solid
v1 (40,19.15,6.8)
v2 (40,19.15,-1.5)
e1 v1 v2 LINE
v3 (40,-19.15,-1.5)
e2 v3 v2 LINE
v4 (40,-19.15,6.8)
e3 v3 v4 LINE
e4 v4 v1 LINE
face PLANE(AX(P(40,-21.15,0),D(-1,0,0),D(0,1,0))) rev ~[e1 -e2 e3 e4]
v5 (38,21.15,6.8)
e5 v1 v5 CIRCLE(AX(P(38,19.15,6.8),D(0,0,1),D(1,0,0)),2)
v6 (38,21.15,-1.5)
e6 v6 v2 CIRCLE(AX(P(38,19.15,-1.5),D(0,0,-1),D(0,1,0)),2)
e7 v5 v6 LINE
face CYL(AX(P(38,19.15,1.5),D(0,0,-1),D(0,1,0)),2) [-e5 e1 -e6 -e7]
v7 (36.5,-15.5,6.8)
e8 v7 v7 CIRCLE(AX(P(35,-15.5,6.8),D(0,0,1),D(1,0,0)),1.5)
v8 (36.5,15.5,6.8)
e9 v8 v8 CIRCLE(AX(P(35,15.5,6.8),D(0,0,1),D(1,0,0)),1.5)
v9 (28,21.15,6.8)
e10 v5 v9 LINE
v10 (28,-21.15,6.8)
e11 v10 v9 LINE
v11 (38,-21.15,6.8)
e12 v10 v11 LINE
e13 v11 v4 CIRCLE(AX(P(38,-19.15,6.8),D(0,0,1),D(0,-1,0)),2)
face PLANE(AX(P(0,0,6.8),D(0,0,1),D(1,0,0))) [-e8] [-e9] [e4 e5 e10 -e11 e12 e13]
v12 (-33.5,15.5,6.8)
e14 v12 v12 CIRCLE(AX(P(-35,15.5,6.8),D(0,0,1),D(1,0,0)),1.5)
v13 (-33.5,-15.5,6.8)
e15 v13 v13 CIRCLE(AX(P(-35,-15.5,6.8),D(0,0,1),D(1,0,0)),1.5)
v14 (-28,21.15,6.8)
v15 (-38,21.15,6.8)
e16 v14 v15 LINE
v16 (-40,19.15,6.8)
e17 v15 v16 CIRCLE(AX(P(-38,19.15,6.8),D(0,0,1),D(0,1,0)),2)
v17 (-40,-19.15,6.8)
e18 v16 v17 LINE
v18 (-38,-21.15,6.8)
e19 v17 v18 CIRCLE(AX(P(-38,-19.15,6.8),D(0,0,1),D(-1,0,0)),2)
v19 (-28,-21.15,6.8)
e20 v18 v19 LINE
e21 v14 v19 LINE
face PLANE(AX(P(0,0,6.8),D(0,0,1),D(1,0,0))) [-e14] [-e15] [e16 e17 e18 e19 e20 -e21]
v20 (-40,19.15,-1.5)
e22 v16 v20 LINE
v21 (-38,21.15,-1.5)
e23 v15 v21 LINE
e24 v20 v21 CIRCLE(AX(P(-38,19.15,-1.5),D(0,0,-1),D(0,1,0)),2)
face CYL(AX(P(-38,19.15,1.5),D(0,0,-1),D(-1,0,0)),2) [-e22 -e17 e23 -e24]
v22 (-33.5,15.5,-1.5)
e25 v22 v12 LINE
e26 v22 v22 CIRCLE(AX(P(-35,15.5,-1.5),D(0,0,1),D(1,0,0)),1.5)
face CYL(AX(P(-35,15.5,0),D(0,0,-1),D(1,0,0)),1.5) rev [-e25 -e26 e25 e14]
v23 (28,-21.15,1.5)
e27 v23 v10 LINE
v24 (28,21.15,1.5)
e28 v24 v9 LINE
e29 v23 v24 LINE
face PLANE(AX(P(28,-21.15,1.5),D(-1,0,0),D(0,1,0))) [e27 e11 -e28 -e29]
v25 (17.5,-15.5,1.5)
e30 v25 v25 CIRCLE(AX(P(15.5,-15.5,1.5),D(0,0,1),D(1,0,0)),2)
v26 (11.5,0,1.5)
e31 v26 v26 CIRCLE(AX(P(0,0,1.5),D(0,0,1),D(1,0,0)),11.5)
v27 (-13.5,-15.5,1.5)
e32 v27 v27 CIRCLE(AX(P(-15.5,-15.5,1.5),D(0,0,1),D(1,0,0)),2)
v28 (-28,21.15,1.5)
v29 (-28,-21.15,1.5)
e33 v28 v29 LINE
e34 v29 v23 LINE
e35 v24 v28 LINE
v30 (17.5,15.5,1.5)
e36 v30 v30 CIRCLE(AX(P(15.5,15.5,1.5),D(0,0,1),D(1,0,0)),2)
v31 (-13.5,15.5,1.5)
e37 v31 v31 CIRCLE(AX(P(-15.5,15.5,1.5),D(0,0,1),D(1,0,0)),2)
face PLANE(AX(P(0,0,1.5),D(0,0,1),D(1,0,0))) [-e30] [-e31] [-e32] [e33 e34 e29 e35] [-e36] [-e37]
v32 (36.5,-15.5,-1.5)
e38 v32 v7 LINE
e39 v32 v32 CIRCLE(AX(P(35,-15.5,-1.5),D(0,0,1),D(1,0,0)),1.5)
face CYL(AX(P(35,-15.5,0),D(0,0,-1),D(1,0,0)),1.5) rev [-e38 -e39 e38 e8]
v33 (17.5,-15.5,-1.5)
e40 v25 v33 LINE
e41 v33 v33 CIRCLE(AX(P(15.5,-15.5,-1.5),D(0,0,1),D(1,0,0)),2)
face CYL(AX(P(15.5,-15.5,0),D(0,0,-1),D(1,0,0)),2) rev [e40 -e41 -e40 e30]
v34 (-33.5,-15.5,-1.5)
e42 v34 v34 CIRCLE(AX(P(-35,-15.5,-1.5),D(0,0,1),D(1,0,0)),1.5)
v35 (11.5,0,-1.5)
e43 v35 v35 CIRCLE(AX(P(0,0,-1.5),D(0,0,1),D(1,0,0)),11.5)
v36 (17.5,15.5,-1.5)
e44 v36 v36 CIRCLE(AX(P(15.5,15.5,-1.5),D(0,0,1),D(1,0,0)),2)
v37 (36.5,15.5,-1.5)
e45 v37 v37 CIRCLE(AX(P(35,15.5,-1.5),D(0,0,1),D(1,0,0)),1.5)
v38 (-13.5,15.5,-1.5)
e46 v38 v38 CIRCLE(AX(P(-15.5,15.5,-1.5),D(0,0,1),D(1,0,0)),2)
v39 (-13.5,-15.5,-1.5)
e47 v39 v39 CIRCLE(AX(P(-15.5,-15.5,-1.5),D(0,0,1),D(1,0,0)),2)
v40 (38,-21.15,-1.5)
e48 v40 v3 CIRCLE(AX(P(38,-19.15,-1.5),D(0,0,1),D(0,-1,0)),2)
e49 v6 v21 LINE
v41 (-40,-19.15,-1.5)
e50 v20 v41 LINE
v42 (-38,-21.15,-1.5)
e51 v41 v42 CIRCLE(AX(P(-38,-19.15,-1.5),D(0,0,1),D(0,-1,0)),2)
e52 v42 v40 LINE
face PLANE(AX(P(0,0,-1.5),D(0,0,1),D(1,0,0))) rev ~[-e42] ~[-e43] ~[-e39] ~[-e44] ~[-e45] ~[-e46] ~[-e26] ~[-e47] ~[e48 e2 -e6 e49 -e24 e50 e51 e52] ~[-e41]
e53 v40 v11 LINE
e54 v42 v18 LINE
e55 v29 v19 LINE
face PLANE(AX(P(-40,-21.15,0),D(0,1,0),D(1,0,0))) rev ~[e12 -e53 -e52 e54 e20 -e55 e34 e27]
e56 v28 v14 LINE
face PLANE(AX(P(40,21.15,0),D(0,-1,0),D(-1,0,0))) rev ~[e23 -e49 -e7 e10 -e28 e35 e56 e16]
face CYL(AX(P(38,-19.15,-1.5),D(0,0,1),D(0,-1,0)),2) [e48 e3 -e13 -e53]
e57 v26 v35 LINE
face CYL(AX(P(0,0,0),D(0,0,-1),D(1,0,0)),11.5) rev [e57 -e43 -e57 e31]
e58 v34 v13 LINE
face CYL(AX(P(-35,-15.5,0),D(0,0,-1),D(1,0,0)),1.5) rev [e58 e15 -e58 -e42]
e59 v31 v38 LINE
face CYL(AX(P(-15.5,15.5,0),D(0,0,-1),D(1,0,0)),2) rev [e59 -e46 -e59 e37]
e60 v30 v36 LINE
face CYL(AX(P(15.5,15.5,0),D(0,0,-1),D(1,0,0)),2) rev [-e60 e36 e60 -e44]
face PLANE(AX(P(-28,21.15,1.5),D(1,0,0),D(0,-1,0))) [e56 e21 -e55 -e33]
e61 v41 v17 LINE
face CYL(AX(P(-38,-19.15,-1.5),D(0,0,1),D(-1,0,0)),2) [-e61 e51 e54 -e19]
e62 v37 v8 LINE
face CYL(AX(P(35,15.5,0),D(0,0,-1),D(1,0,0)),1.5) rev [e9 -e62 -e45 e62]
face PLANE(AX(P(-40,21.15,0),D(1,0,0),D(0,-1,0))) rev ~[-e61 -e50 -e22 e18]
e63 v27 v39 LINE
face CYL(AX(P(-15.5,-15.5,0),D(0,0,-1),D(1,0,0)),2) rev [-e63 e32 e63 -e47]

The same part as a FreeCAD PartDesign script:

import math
import FreeCAD as App
import Part
import Sketcher
Q = App.Units.Quantity


def edges_at(feature, points):
    """Names of the edges that pass closest to the given points."""
    edges = feature.Shape.Edges
    near = lambda p: min(range(len(edges)), key=lambda i: edges[i].distToShape(Part.Vertex(*p))[0])
    return sorted({f"Edge{near(p) + 1}" for p in points})

doc = App.newDocument("Part")
body = doc.addObject("PartDesign::Body", "Body")

# Sketch on XY plane
sketch1 = body.newObject("Sketcher::SketchObject", "Sketch")
sketch1.AttachmentSupport = (doc.getObject("XY_Plane"), [""])
sketch1.MapMode = "FlatFace"
sketch1.addGeometry(Part.LineSegment(App.Vector(-40, 21.1, 0), App.Vector(-40, -21.1, 0)), False)
sketch1.addGeometry(Part.LineSegment(App.Vector(-40, -21.1, 0), App.Vector(40, -21.1, 0)), False)
sketch1.addGeometry(Part.LineSegment(App.Vector(40, -21.1, 0), App.Vector(40, 21.1, 0)), False)
sketch1.addGeometry(Part.LineSegment(App.Vector(40, 21.1, 0), App.Vector(-40, 21.1, 0)), False)
sketch1.addGeometry(Part.Circle(App.Vector(-35, -15.5, 0), App.Vector(0, 0, 1), 1.5), False)
sketch1.addGeometry(Part.Circle(App.Vector(-15.5, -15.5, 0), App.Vector(0, 0, 1), 2), False)
sketch1.addGeometry(Part.Circle(App.Vector(15.5, -15.5, 0), App.Vector(0, 0, 1), 2), False)
sketch1.addGeometry(Part.Circle(App.Vector(35, -15.5, 0), App.Vector(0, 0, 1), 1.5), False)
sketch1.addGeometry(Part.Circle(App.Vector(-35, 15.5, 0), App.Vector(0, 0, 1), 1.5), False)
sketch1.addGeometry(Part.Circle(App.Vector(-15.5, 15.5, 0), App.Vector(0, 0, 1), 2), False)
sketch1.addGeometry(Part.Circle(App.Vector(0, 0, 0), App.Vector(0, 0, 1), 11.5), False)
sketch1.addGeometry(Part.Circle(App.Vector(15.5, 15.5, 0), App.Vector(0, 0, 1), 2), False)
sketch1.addGeometry(Part.Circle(App.Vector(35, 15.5, 0), App.Vector(0, 0, 1), 1.5), False)
sketch1.addConstraint(Sketcher.Constraint("Coincident", 0, 2, 1, 1))
sketch1.addConstraint(Sketcher.Constraint("Coincident", 1, 2, 2, 1))
sketch1.addConstraint(Sketcher.Constraint("Coincident", 2, 2, 3, 1))
sketch1.addConstraint(Sketcher.Constraint("Coincident", 3, 2, 0, 1))
sketch1.addConstraint(Sketcher.Constraint("Vertical", 0))
sketch1.addConstraint(Sketcher.Constraint("Horizontal", 1))
sketch1.addConstraint(Sketcher.Constraint("Vertical", 2))
sketch1.addConstraint(Sketcher.Constraint("Horizontal", 3))
sketch1.addConstraint(Sketcher.Constraint("Coincident", 10, 3, -1, 1))
sketch1.addConstraint(Sketcher.Constraint("Equal", 5, 6))
sketch1.addConstraint(Sketcher.Constraint("Equal", 4, 7))
sketch1.addConstraint(Sketcher.Constraint("Equal", 7, 8))
sketch1.addConstraint(Sketcher.Constraint("Equal", 6, 9))
sketch1.addConstraint(Sketcher.Constraint("Equal", 9, 11))
sketch1.addConstraint(Sketcher.Constraint("Equal", 8, 12))
sketch1.addConstraint(Sketcher.Constraint("Symmetric", 7, 3, 8, 3, -1, 1))
sketch1.addConstraint(Sketcher.Constraint("Symmetric", 6, 3, 9, 3, -1, 1))
sketch1.addConstraint(Sketcher.Constraint("Symmetric", 5, 3, 11, 3, -1, 1))
sketch1.addConstraint(Sketcher.Constraint("Symmetric", 4, 3, 12, 3, -1, 1))
sketch1.addConstraint(Sketcher.Constraint("Symmetric", 0, 2, 2, 2, -1, 1))
sketch1.addConstraint(Sketcher.Constraint("Symmetric", 5, 3, 6, 3, -2))
sketch1.addConstraint(Sketcher.Constraint("Symmetric", 4, 3, 7, 3, -2))
sketch1.addConstraint(Sketcher.Constraint("Horizontal", 4, 3, 5, 3))
sketch1.addConstraint(Sketcher.Constraint("Diameter", 4, Q("3 mm")))
sketch1.addConstraint(Sketcher.Constraint("Diameter", 5, Q("4 mm")))
sketch1.addConstraint(Sketcher.Constraint("Diameter", 10, Q("23 mm")))
sketch1.addConstraint(Sketcher.Constraint("DistanceX", 1, 1, 1, 2, Q("80 mm")))
sketch1.addConstraint(Sketcher.Constraint("DistanceY", 0, 2, 0, 1, Q("42.3 mm")))
sketch1.addConstraint(Sketcher.Constraint("DistanceX", 5, 3, 6, 3, Q("31 mm")))
sketch1.addConstraint(Sketcher.Constraint("DistanceY", 4, 3, 8, 3, Q("31 mm")))
sketch1.addConstraint(Sketcher.Constraint("DistanceX", 0, 2, 4, 3, Q("5 mm")))
pad1 = body.newObject("PartDesign::Pad", "Pad")
pad1.Profile = sketch1
pad1.Length = 3
pad1.Midplane = True
doc.recompute()

fillet = body.newObject("PartDesign::Fillet", "Fillet")
fillet.Base = (pad1, edges_at(pad1, [
    (-40, -21.15, 0),
    (-40, 21.15, 0),
    (40, -21.15, 0),
    (40, 21.15, 0),
]))
fillet.Radius = 2

# Sketch on XY plane
sketch2 = body.newObject("Sketcher::SketchObject", "Sketch001")
sketch2.AttachmentSupport = (doc.getObject("XY_Plane"), [""])
sketch2.MapMode = "FlatFace"
sketch2.AttachmentOffset = App.Placement(App.Vector(0, 0, 1.5), App.Rotation())
sketch2.addGeometry(Part.LineSegment(App.Vector(40, -19.1, 0), App.Vector(40, 19.1, 0)), False)
sketch2.addGeometry(Part.ArcOfCircle(Part.Circle(App.Vector(38, 19.1, 0), App.Vector(0, 0, 1), 2), math.radians(0), math.radians(90)), False)
sketch2.addGeometry(Part.LineSegment(App.Vector(38, 21.1, 0), App.Vector(28, 21.1, 0)), False)
sketch2.addGeometry(Part.LineSegment(App.Vector(28, 21.1, 0), App.Vector(28, -21.1, 0)), False)
sketch2.addGeometry(Part.LineSegment(App.Vector(28, -21.1, 0), App.Vector(38, -21.1, 0)), False)
sketch2.addGeometry(Part.ArcOfCircle(Part.Circle(App.Vector(38, -19.1, 0), App.Vector(0, 0, 1), 2), math.radians(-90), math.radians(0)), False)
sketch2.addGeometry(Part.Circle(App.Vector(35, -15.5, 0), App.Vector(0, 0, 1), 1.5), False)
sketch2.addGeometry(Part.Circle(App.Vector(35, 15.5, 0), App.Vector(0, 0, 1), 1.5), False)
sketch2.addGeometry(Part.LineSegment(App.Vector(-28, -21.1, 0), App.Vector(-28, 21.1, 0)), False)
sketch2.addGeometry(Part.LineSegment(App.Vector(-28, 21.1, 0), App.Vector(-38, 21.1, 0)), False)
sketch2.addGeometry(Part.ArcOfCircle(Part.Circle(App.Vector(-38, 19.1, 0), App.Vector(0, 0, 1), 2), math.radians(90), math.radians(180)), False)
sketch2.addGeometry(Part.LineSegment(App.Vector(-40, 19.1, 0), App.Vector(-40, -19.1, 0)), False)
sketch2.addGeometry(Part.ArcOfCircle(Part.Circle(App.Vector(-38, -19.1, 0), App.Vector(0, 0, 1), 2), math.radians(180), math.radians(270)), False)
sketch2.addGeometry(Part.LineSegment(App.Vector(-38, -21.1, 0), App.Vector(-28, -21.1, 0)), False)
sketch2.addGeometry(Part.Circle(App.Vector(-35, -15.5, 0), App.Vector(0, 0, 1), 1.5), False)
sketch2.addGeometry(Part.Circle(App.Vector(-35, 15.5, 0), App.Vector(0, 0, 1), 1.5), False)
sketch2.addConstraint(Sketcher.Constraint("Tangent", 0, 2, 1, 1))
sketch2.addConstraint(Sketcher.Constraint("Tangent", 1, 2, 2, 1))
sketch2.addConstraint(Sketcher.Constraint("Coincident", 2, 2, 3, 1))
sketch2.addConstraint(Sketcher.Constraint("Coincident", 3, 2, 4, 1))
sketch2.addConstraint(Sketcher.Constraint("Tangent", 4, 2, 5, 1))
sketch2.addConstraint(Sketcher.Constraint("Tangent", 5, 2, 0, 1))
sketch2.addConstraint(Sketcher.Constraint("Coincident", 8, 2, 9, 1))
sketch2.addConstraint(Sketcher.Constraint("Tangent", 9, 2, 10, 1))
sketch2.addConstraint(Sketcher.Constraint("Tangent", 10, 2, 11, 1))
sketch2.addConstraint(Sketcher.Constraint("Tangent", 11, 2, 12, 1))
sketch2.addConstraint(Sketcher.Constraint("Tangent", 12, 2, 13, 1))
sketch2.addConstraint(Sketcher.Constraint("Coincident", 13, 2, 8, 1))
sketch2.addConstraint(Sketcher.Constraint("Vertical", 0))
sketch2.addConstraint(Sketcher.Constraint("Horizontal", 2))
sketch2.addConstraint(Sketcher.Constraint("Vertical", 3))
sketch2.addConstraint(Sketcher.Constraint("Horizontal", 4))
sketch2.addConstraint(Sketcher.Constraint("Vertical", 8))
sketch2.addConstraint(Sketcher.Constraint("Horizontal", 9))
sketch2.addConstraint(Sketcher.Constraint("Vertical", 11))
sketch2.addConstraint(Sketcher.Constraint("Horizontal", 13))
sketch2.addConstraint(Sketcher.Constraint("Equal", 1, 5))
sketch2.addConstraint(Sketcher.Constraint("Equal", 6, 7))
sketch2.addConstraint(Sketcher.Constraint("Equal", 5, 10))
sketch2.addConstraint(Sketcher.Constraint("Equal", 10, 12))
sketch2.addConstraint(Sketcher.Constraint("Equal", 7, 14))
sketch2.addConstraint(Sketcher.Constraint("Equal", 14, 15))
sketch2.addConstraint(Sketcher.Constraint("Symmetric", 5, 3, 10, 3, -1, 1))
sketch2.addConstraint(Sketcher.Constraint("Symmetric", 7, 3, 14, 3, -1, 1))
sketch2.addConstraint(Sketcher.Constraint("Symmetric", 6, 3, 15, 3, -1, 1))
sketch2.addConstraint(Sketcher.Constraint("Symmetric", 2, 2, 13, 2, -1, 1))
sketch2.addConstraint(Sketcher.Constraint("Symmetric", 6, 3, 14, 3, -2))
sketch2.addConstraint(Sketcher.Constraint("Horizontal", 1, 3, 10, 3))
sketch2.addConstraint(Sketcher.Constraint("Diameter", 6, Q("3 mm")))
sketch2.addConstraint(Sketcher.Constraint("Radius", 1, Q("2 mm")))
sketch2.addConstraint(Sketcher.Constraint("DistanceX", 2, 2, 0, 2, Q("12 mm")))
sketch2.addConstraint(Sketcher.Constraint("DistanceY", 0, 1, 0, 2, Q("38.3 mm")))
sketch2.addConstraint(Sketcher.Constraint("DistanceX", -1, 1, 1, 3, Q("38 mm")))
sketch2.addConstraint(Sketcher.Constraint("DistanceX", -1, 1, 6, 3, Q("35 mm")))
sketch2.addConstraint(Sketcher.Constraint("DistanceY", 6, 3, 7, 3, Q("31 mm")))
pad2 = body.newObject("PartDesign::Pad", "Pad001")
pad2.Profile = sketch2
pad2.Length = 5.3

doc.recompute()
